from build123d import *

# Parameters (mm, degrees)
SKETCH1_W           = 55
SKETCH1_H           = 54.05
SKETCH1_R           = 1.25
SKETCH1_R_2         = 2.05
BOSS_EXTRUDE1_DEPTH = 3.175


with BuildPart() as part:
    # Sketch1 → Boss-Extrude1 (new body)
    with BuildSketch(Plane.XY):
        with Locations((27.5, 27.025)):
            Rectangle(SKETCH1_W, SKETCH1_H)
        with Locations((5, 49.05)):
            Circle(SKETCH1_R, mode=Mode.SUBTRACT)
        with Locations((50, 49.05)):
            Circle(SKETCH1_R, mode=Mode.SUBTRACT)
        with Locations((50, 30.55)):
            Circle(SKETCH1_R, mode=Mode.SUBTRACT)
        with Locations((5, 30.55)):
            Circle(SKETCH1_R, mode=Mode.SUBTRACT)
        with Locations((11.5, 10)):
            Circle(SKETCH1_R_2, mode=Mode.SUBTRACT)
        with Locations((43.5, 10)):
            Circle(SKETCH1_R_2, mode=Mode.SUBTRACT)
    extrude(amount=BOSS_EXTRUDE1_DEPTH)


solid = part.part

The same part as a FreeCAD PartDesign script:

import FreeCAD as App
import Part
import Sketcher
from FreeCAD import Vector


def add_polygon(sketch, points):
    """Adds a closed chain of lines whose ends are joined by coincident constraints."""
    first, n = sketch.GeometryCount, len(points)
    for a, b in zip(points, points[1:] + points[:1]):
        sketch.addGeometry(Part.LineSegment(App.Vector(*a, 0), App.Vector(*b, 0)), False)
    for i in range(n):
        sketch.addConstraint(Sketcher.Constraint("Coincident", first + i, 2, first + (i + 1) % n, 1))

doc = App.newDocument("Part")
body = doc.addObject("PartDesign::Body", "Body")

# Sketch on XY plane
sketch1 = body.newObject("Sketcher::SketchObject", "Sketch")
sketch1.AttachmentSupport = (doc.getObject("XY_Plane"), [""])
sketch1.MapMode = "FlatFace"
add_polygon(sketch1, [(0, 54.05), (0, 0), (55, 0), (55, 54.05)])  # lines 0-3
sketch1.addGeometry(Part.Circle(Vector(11.5, 10, 0), Vector(0, 0, 1), 2.05), False)  # 4
sketch1.addGeometry(Part.Circle(Vector(43.5, 10, 0), Vector(0, 0, 1), 2.05), False)  # 5
sketch1.addGeometry(Part.Circle(Vector(5, 30.55, 0), Vector(0, 0, 1), 1.25), False)  # 6
sketch1.addGeometry(Part.Circle(Vector(5, 49.05, 0), Vector(0, 0, 1), 1.25), False)  # 7
sketch1.addGeometry(Part.Circle(Vector(50, 30.55, 0), Vector(0, 0, 1), 1.25), False)  # 8
sketch1.addGeometry(Part.Circle(Vector(50, 49.05, 0), Vector(0, 0, 1), 1.25), False)  # 9
sketch1.addConstraint(Sketcher.Constraint("Vertical", 0))
sketch1.addConstraint(Sketcher.Constraint("Horizontal", 1))
sketch1.addConstraint(Sketcher.Constraint("Vertical", 2))
sketch1.addConstraint(Sketcher.Constraint("Horizontal", 3))
sketch1.addConstraint(Sketcher.Constraint("Coincident", 0, 2, -1, 1))
sketch1.addConstraint(Sketcher.Constraint("Equal", 4, 5))
sketch1.addConstraint(Sketcher.Constraint("Equal", 6, 7))
sketch1.addConstraint(Sketcher.Constraint("Equal", 7, 8))
sketch1.addConstraint(Sketcher.Constraint("Equal", 8, 9))
sketch1.addConstraint(Sketcher.Constraint("Horizontal", 4, 3, 5, 3))
sketch1.addConstraint(Sketcher.Constraint("Horizontal", 6, 3, 8, 3))
sketch1.addConstraint(Sketcher.Constraint("Horizontal", 7, 3, 9, 3))
sketch1.addConstraint(Sketcher.Constraint("Vertical", 6, 3, 7, 3))
sketch1.addConstraint(Sketcher.Constraint("Vertical", 8, 3, 9, 3))
sketch1.addConstraint(Sketcher.Constraint("Diameter", 4, 4.1))
sketch1.addConstraint(Sketcher.Constraint("Diameter", 6, 2.5))
sketch1.addConstraint(Sketcher.Constraint("DistanceX", 1, 1, 1, 2, 55.0))
sketch1.addConstraint(Sketcher.Constraint("DistanceY", -1, 1, 4, 3, 10.0))
sketch1.addConstraint(Sketcher.Constraint("DistanceX", -1, 1, 6, 3, 5.0))
sketch1.addConstraint(Sketcher.Constraint("DistanceX", -1, 1, 8, 3, 50.0))
sketch1.addConstraint(Sketcher.Constraint("DistanceX", 4, 3, 5, 3, 32.0))
sketch1.addConstraint(Sketcher.Constraint("DistanceY", 9, 3, 2, 2, 5.0))
sketch1.addConstraint(Sketcher.Constraint("DistanceY", 0, 2, 0, 1, 54.05))
sketch1.addConstraint(Sketcher.Constraint("DistanceX", -1, 1, 4, 3, 11.5))
sketch1.addConstraint(Sketcher.Constraint("DistanceY", 6, 3, 7, 3, 18.5))
pad1 = body.newObject("PartDesign::Pad", "Pad")
pad1.Profile = sketch1
pad1.Length = 3.175

doc.recompute()
